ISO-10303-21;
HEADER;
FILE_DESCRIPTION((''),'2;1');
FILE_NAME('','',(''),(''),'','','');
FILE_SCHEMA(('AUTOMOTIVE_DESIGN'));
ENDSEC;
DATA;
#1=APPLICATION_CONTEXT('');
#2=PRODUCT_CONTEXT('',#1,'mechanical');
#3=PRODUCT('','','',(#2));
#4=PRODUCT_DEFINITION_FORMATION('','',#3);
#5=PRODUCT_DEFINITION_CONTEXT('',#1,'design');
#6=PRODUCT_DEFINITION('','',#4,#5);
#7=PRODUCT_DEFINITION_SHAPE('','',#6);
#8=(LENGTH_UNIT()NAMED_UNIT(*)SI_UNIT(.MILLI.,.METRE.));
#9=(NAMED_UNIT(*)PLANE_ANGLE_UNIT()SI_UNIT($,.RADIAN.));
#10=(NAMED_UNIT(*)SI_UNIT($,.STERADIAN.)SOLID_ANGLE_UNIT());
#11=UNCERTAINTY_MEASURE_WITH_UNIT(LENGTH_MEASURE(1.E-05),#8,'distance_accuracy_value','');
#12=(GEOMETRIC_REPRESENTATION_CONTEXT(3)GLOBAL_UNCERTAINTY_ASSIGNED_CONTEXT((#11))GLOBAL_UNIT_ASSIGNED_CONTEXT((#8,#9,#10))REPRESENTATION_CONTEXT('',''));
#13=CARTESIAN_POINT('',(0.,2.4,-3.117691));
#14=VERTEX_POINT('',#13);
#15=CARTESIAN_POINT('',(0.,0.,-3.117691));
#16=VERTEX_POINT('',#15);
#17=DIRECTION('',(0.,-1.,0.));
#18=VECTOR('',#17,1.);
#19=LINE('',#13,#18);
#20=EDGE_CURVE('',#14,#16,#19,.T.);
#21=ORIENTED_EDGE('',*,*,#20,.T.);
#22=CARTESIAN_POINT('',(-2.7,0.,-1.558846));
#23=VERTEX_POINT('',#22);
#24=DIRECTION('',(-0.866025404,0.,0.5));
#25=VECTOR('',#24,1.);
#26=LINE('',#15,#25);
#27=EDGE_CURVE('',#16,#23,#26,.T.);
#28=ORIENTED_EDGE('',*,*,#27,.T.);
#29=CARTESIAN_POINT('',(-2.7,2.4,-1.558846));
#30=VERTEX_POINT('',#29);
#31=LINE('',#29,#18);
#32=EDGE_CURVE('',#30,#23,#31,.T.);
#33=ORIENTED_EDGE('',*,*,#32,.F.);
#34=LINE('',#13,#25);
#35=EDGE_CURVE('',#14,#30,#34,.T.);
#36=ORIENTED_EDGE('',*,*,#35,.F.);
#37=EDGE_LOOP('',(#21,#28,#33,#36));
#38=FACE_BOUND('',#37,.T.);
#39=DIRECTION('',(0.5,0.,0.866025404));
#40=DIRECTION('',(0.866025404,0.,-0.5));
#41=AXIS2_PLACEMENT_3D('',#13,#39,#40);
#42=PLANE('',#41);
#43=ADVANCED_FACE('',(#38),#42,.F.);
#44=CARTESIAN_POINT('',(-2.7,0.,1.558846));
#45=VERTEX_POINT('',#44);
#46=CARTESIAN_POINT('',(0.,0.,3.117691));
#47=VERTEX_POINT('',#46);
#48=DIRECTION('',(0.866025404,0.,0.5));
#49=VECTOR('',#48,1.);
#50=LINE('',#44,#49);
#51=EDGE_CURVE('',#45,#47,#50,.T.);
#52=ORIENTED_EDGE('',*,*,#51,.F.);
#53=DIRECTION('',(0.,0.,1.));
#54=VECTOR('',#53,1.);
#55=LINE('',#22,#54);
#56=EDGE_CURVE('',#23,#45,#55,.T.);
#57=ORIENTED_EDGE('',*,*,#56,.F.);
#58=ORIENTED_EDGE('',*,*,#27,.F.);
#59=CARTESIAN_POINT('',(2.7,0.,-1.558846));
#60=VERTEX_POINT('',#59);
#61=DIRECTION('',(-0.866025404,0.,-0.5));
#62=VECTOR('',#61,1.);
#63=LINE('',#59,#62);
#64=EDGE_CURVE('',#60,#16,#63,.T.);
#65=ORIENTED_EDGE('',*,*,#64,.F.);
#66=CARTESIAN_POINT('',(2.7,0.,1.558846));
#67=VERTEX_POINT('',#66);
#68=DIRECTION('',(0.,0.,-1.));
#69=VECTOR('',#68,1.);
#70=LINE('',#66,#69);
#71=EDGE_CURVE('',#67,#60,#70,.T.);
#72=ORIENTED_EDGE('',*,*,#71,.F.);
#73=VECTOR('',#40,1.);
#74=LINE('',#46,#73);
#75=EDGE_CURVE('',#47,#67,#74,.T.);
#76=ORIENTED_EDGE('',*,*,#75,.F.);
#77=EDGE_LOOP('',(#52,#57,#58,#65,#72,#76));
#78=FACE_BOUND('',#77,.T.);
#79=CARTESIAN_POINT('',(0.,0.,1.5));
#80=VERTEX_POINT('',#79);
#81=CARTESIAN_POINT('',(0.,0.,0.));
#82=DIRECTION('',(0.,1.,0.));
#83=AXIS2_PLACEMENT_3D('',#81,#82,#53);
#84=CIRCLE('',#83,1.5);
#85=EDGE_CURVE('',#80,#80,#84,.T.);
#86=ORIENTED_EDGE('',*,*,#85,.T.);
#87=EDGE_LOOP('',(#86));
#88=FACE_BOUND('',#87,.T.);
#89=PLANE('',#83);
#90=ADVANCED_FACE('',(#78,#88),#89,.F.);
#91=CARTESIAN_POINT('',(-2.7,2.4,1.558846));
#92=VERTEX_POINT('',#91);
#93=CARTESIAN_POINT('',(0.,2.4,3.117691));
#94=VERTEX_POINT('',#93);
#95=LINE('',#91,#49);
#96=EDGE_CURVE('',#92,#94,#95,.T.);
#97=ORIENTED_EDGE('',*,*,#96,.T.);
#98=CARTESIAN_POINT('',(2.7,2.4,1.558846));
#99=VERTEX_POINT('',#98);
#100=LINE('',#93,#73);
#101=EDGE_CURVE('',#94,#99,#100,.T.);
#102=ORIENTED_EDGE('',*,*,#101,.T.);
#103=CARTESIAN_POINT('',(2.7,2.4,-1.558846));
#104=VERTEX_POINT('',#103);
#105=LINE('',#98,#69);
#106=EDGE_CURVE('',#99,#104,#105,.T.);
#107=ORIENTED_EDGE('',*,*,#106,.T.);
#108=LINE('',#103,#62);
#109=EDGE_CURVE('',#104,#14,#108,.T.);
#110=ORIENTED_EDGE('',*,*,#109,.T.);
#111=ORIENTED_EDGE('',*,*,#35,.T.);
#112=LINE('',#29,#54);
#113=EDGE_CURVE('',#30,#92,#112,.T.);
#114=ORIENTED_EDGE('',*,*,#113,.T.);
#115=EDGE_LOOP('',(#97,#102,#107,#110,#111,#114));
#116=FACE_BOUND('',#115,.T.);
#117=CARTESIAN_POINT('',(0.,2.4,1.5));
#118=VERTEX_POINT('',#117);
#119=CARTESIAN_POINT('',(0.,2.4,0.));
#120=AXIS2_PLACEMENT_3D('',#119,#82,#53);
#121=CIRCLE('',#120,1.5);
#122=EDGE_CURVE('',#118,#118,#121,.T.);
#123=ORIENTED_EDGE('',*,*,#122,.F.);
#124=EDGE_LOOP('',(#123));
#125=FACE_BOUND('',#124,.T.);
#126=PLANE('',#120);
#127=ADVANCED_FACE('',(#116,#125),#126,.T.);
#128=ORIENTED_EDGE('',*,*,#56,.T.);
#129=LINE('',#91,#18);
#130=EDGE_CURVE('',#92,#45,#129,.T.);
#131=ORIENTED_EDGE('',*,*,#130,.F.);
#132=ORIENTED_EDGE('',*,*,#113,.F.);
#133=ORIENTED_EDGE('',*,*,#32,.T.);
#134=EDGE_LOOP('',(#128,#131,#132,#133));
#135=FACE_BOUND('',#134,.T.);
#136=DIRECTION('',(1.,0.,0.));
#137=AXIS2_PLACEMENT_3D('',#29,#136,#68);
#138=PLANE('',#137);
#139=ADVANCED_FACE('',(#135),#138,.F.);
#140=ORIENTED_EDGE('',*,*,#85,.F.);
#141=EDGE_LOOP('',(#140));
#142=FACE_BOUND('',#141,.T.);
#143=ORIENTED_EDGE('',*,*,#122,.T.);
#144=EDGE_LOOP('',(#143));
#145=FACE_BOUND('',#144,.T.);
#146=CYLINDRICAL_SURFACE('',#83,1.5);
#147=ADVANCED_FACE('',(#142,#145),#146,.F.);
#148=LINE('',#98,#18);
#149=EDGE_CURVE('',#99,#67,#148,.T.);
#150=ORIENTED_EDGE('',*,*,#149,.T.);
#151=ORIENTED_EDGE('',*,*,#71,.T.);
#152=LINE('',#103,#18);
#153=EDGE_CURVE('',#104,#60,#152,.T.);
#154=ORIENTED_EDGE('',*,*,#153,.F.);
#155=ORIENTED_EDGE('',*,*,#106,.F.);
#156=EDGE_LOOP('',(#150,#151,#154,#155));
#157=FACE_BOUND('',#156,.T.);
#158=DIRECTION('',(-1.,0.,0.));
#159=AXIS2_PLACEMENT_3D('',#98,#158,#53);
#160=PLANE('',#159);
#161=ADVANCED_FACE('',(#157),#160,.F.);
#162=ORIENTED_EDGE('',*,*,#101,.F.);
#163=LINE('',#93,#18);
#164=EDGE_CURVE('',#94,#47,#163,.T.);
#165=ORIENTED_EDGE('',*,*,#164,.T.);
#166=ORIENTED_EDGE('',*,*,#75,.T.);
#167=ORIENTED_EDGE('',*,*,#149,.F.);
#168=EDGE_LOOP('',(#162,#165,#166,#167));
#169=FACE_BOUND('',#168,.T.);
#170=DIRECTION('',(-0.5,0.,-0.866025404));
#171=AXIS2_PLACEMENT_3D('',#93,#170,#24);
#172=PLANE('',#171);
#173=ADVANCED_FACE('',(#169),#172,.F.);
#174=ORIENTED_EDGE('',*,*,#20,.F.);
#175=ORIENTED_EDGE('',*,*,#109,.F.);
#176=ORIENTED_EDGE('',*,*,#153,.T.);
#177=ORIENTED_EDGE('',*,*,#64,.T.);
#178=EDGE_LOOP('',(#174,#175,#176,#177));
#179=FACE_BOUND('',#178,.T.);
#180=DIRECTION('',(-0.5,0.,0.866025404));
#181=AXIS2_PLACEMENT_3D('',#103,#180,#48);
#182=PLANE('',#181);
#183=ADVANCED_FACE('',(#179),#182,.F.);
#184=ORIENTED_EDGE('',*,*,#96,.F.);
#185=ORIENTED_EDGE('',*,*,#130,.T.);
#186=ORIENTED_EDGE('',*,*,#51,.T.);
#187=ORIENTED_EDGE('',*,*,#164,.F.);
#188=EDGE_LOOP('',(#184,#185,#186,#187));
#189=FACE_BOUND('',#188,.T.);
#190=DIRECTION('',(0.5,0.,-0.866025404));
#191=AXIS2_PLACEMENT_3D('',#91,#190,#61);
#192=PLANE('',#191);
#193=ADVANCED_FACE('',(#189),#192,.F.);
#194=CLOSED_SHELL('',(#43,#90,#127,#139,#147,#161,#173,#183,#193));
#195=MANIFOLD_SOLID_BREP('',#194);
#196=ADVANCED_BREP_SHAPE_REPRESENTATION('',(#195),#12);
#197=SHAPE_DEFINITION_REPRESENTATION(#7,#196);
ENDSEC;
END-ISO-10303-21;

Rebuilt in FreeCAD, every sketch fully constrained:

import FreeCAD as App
import Part
import Sketcher
Q = App.Units.Quantity


def add_polygon(sketch, points):
    """Adds a closed chain of lines whose ends are joined by coincident constraints."""
    first, n = sketch.GeometryCount, len(points)
    for a, b in zip(points, points[1:] + points[:1]):
        sketch.addGeometry(Part.LineSegment(App.Vector(*a, 0), App.Vector(*b, 0)), False)
    for i in range(n):
        sketch.addConstraint(Sketcher.Constraint("Coincident", first + i, 2, first + (i + 1) % n, 1))

doc = App.newDocument("Part")
body = doc.addObject("PartDesign::Body", "Body")

# Sketch on XZ plane
sketch1 = body.newObject("Sketcher::SketchObject", "Sketch")
sketch1.AttachmentSupport = (doc.getObject("XZ_Plane"), [""])
sketch1.MapMode = "FlatFace"
add_polygon(sketch1, [(0, -3.117691), (-2.7, -1.558846), (-2.7, 1.558846), (0, 3.117691), (2.7, 1.558846), (2.7, -1.558846)])  # lines 0-5
sketch1.addConstraint(Sketcher.Constraint("Vertical", 1))
sketch1.addConstraint(Sketcher.Constraint("Vertical", 4))
sketch1.addConstraint(Sketcher.Constraint("Symmetric", 0, 2, 3, 2, -1, 1))
sketch1.addConstraint(Sketcher.Constraint("Symmetric", 2, 2, 5, 2, -1, 1))
sketch1.addConstraint(Sketcher.Constraint("PointOnObject", 2, 2, -2))
sketch1.addConstraint(Sketcher.Constraint("Parallel", 2, 5))
sketch1.addConstraint(Sketcher.Constraint("Horizontal", 1, 2, 3, 2))
sketch1.addConstraint(Sketcher.Constraint("Angle", 0, Q("150 deg")))
sketch1.addConstraint(Sketcher.Constraint("DistanceX", 0, 2, -1, 1, Q("2.7 mm")))
sketch1.addConstraint(Sketcher.Constraint("DistanceY", 1, 1, 1, 2, Q("3.117691 mm")))
pad1 = body.newObject("PartDesign::Pad", "Pad")
pad1.Profile = sketch1
pad1.Length = 2.4
pad1.Reversed = True

# Sketch on XZ plane
sketch2 = body.newObject("Sketcher::SketchObject", "Sketch001")
sketch2.AttachmentSupport = (doc.getObject("XZ_Plane"), [""])
sketch2.MapMode = "FlatFace"
sketch2.AttachmentOffset = App.Placement(App.Vector(0, 0, -2.4), App.Rotation())
sketch2.addGeometry(Part.Circle(App.Vector(0, 0, 0), App.Vector(0, 0, 1), 1.5), False)
sketch2.addConstraint(Sketcher.Constraint("Coincident", 0, 3, -1, 1))
sketch2.addConstraint(Sketcher.Constraint("Diameter", 0, Q("3 mm")))
pocket1 = body.newObject("PartDesign::Pocket", "Pocket")
pocket1.Profile = sketch2
pocket1.Length = 2.4
pocket1.Reversed = True

doc.recompute()
